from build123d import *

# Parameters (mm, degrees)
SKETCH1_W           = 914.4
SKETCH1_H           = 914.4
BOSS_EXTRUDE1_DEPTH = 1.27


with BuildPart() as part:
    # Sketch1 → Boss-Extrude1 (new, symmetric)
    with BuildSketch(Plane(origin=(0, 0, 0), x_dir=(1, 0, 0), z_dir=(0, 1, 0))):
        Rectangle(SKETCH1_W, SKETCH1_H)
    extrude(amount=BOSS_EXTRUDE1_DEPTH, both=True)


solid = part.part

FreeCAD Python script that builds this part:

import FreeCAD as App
import Part
import Sketcher

V = App.Vector
Q = App.Units.Quantity

doc = App.newDocument("Part")
body = doc.addObject("PartDesign::Body", "Body")

# Sketch on XZ plane
sketch1 = doc.addObject("Sketcher::SketchObject", "Sketch")
body.addObject(sketch1)
sketch1.AttachmentSupport = (doc.XZ_Plane, [""])
sketch1.MapMode = "FlatFace"
sketch1.addGeometry([
    Part.LineSegment(V(-457, -457, 0), V(-457, 457, 0)),
    Part.LineSegment(V(-457, 457, 0), V(457, 457, 0)),
    Part.LineSegment(V(457, 457, 0), V(457, -457, 0)),
    Part.LineSegment(V(457, -457, 0), V(-457, -457, 0)),
], False)
sketch1.addConstraint([
    Sketcher.Constraint("Coincident", 0, 2, 1, 1),
    Sketcher.Constraint("Coincident", 1, 2, 2, 1),
    Sketcher.Constraint("Coincident", 2, 2, 3, 1),
    Sketcher.Constraint("Coincident", 3, 2, 0, 1),
    Sketcher.Constraint("Vertical", 0),
    Sketcher.Constraint("Horizontal", 1),
    Sketcher.Constraint("Vertical", 2),
    Sketcher.Constraint("Horizontal", 3),
    Sketcher.Constraint("Symmetric", 0, 2, 2, 2, -1, 1),
    Sketcher.Constraint("Equal", 3, 0),
    Sketcher.Constraint("DistanceX", 1, 1, 1, 2, Q("36 in")),
])
pad1 = doc.addObject("PartDesign::Pad", "Pad")
body.addObject(pad1)
pad1.Profile = sketch1
pad1.Length = Q("0.1 in")
pad1.Midplane = True

doc.recompute()
